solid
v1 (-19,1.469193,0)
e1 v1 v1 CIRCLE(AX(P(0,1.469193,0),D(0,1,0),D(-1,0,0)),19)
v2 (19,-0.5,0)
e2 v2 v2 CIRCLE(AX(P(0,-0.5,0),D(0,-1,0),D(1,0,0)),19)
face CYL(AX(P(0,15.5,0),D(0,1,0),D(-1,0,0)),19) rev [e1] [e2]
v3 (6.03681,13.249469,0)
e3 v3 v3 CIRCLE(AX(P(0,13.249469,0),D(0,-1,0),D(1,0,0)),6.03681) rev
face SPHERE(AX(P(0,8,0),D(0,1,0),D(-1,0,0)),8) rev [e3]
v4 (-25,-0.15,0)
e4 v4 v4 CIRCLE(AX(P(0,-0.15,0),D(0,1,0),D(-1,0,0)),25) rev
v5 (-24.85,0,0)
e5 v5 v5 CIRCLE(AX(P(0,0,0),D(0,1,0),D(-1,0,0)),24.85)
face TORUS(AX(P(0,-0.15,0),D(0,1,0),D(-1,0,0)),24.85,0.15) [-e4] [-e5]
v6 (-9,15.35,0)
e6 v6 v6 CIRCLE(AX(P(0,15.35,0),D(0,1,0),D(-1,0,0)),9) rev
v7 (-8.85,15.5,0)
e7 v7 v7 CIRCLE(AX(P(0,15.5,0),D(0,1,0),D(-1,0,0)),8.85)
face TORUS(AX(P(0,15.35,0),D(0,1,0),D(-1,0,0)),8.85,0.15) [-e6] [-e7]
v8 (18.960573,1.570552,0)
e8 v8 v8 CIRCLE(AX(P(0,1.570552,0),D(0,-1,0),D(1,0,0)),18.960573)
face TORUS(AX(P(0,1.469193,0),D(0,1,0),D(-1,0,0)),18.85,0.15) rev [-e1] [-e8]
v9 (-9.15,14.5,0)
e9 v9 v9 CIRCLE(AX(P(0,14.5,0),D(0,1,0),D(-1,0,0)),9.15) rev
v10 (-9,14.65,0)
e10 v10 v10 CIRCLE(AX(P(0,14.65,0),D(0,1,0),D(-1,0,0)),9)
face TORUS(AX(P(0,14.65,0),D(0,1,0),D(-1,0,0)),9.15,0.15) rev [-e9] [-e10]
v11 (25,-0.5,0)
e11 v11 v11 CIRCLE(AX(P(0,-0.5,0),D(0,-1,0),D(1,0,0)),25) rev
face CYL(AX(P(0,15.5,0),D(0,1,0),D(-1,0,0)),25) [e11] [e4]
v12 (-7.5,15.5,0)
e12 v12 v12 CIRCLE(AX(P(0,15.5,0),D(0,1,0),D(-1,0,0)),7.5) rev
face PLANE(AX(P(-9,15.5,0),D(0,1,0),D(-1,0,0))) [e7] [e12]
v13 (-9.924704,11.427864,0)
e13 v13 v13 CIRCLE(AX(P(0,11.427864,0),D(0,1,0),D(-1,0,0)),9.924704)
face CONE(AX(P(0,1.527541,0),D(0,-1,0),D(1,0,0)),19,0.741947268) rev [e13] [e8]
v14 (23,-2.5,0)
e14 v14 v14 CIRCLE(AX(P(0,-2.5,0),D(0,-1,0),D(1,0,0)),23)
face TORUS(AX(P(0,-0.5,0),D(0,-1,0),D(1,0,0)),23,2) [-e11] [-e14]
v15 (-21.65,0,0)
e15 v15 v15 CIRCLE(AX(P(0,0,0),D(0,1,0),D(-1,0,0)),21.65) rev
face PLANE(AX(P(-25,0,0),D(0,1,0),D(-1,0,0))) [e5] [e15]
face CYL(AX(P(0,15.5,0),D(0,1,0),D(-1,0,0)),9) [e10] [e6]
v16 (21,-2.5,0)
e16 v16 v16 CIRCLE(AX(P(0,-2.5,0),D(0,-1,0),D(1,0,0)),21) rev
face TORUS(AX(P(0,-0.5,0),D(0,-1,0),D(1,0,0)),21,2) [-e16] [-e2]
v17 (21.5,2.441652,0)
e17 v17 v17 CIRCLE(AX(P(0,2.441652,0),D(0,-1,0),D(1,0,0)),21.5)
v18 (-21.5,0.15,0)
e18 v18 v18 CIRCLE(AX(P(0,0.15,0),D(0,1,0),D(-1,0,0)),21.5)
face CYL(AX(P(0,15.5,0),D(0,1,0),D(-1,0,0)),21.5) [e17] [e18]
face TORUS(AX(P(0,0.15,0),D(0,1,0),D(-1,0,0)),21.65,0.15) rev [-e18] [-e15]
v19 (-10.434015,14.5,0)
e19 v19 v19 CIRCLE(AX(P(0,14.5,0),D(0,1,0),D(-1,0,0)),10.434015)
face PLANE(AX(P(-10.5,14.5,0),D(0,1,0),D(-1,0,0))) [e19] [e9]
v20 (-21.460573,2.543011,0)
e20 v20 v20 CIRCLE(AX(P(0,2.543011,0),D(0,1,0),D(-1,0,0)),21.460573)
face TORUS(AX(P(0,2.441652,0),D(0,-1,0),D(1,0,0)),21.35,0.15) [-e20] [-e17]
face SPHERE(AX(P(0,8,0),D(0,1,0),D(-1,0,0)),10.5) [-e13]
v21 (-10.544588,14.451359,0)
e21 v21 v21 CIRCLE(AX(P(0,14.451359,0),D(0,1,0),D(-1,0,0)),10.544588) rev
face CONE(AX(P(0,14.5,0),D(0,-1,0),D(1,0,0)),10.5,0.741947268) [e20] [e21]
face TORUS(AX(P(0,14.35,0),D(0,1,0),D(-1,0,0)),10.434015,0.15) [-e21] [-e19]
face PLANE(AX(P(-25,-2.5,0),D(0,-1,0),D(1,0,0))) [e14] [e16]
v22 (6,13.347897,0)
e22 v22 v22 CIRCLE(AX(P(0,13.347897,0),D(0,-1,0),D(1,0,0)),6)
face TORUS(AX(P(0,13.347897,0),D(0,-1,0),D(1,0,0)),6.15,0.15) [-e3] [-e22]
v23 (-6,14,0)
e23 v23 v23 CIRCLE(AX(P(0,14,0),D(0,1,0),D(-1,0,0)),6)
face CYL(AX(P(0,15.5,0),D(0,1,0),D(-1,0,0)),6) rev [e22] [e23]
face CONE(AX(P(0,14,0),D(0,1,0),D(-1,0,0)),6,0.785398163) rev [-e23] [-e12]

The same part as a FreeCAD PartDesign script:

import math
import FreeCAD as App
import Part
import Sketcher
Q = App.Units.Quantity


def edges_at(feature, points):
    """Names of the edges that pass closest to the given points."""
    edges = feature.Shape.Edges
    near = lambda p: min(range(len(edges)), key=lambda i: edges[i].distToShape(Part.Vertex(*p))[0])
    return sorted({f"Edge{near(p) + 1}" for p in points})

doc = App.newDocument("Part")
body = doc.addObject("PartDesign::Body", "Body")

# Sketch on XY plane
sketch1 = body.newObject("Sketcher::SketchObject", "Sketch")
sketch1.AttachmentSupport = (doc.getObject("XY_Plane"), [""])
sketch1.MapMode = "FlatFace"
sketch1.addGeometry([
    Part.LineSegment(App.Vector(-21.5, 0, 0), App.Vector(-25, 0, 0)),  # 0
    Part.LineSegment(App.Vector(-25, 0, 0), App.Vector(-25, -2.5, 0)),  # 1
    Part.LineSegment(App.Vector(-25, -2.5, 0), App.Vector(-19, -2.5, 0)),  # 2
    Part.LineSegment(App.Vector(-19, -2.5, 0), App.Vector(-19, 1.527541, 0)),  # 3
    Part.LineSegment(App.Vector(-19, 1.527541, 0), App.Vector(-9.924704, 11.427864, 0)),  # 4
    Part.ArcOfCircle(Part.Circle(App.Vector(0, 8, 0), App.Vector(0, 0, 1), 10.5), math.radians(160.945754), math.radians(270)),  # 5
    Part.LineSegment(App.Vector(0, -2.5, 0), App.Vector(0, 0, 0)),  # 6
    Part.ArcOfCircle(Part.Circle(App.Vector(0, 8, 0), App.Vector(0, 0, 1), 8), math.radians(138.590378), math.radians(270)),  # 7
    Part.LineSegment(App.Vector(-6, 13.291503, 0), App.Vector(-6, 15.5, 0)),  # 8
    Part.LineSegment(App.Vector(-6, 15.5, 0), App.Vector(-9, 15.5, 0)),  # 9
    Part.LineSegment(App.Vector(-9, 15.5, 0), App.Vector(-9, 14.5, 0)),  # 10
    Part.LineSegment(App.Vector(-9, 14.5, 0), App.Vector(-10.5, 14.5, 0)),  # 11
    Part.LineSegment(App.Vector(-10.5, 14.5, 0), App.Vector(-21.5, 2.5, 0)),  # 12
    Part.LineSegment(App.Vector(-21.5, 2.5, 0), App.Vector(-21.5, 0, 0)),  # 13
], False)
sketch1.addConstraint([
    Sketcher.Constraint("Coincident", 0, 2, 1, 1),
    Sketcher.Constraint("Coincident", 1, 2, 2, 1),
    Sketcher.Constraint("Coincident", 2, 2, 3, 1),
    Sketcher.Constraint("Coincident", 3, 2, 4, 1),
    Sketcher.Constraint("Coincident", 4, 2, 5, 1),
    Sketcher.Constraint("Coincident", 5, 2, 6, 1),
    Sketcher.Constraint("Coincident", 6, 2, 7, 2),
    Sketcher.Constraint("Coincident", 7, 1, 8, 1),
    Sketcher.Constraint("Coincident", 8, 2, 9, 1),
    Sketcher.Constraint("Coincident", 9, 2, 10, 1),
    Sketcher.Constraint("Coincident", 10, 2, 11, 1),
    Sketcher.Constraint("Coincident", 11, 2, 12, 1),
    Sketcher.Constraint("Coincident", 12, 2, 13, 1),
    Sketcher.Constraint("Coincident", 13, 2, 0, 1),
    Sketcher.Constraint("Horizontal", 0),
    Sketcher.Constraint("Vertical", 1),
    Sketcher.Constraint("Horizontal", 2),
    Sketcher.Constraint("Vertical", 3),
    Sketcher.Constraint("Vertical", 6),
    Sketcher.Constraint("Vertical", 8),
    Sketcher.Constraint("Horizontal", 9),
    Sketcher.Constraint("Vertical", 10),
    Sketcher.Constraint("Horizontal", 11),
    Sketcher.Constraint("Vertical", 13),
    Sketcher.Constraint("Coincident", 6, 2, -1, 1),
    Sketcher.Constraint("Coincident", 7, 3, 5, 3),
    Sketcher.Constraint("PointOnObject", 5, 3, -2),
    Sketcher.Constraint("PointOnObject", 0, 2, -1),
    Sketcher.Constraint("Parallel", 4, 12),
    Sketcher.Constraint("Horizontal", 2, 2, 5, 2),
    Sketcher.Constraint("Equal", 6, 13),
    Sketcher.Constraint("Radius", 7, Q("8 mm")),
    Sketcher.Constraint("Radius", 5, Q("10.5 mm")),
    Sketcher.Constraint("DistanceX", 2, 1, 2, 2, Q("6 mm")),
    Sketcher.Constraint("DistanceX", 9, 2, 9, 1, Q("3 mm")),
    Sketcher.Constraint("DistanceY", 10, 2, 10, 1, Q("1 mm")),
    Sketcher.Constraint("DistanceX", 0, 2, 0, 1, Q("3.5 mm")),
    Sketcher.Constraint("DistanceX", 11, 2, 11, 1, Q("1.5 mm")),
    Sketcher.Constraint("DistanceX", 0, 2, -1, 1, Q("25 mm")),
    Sketcher.Constraint("DistanceX", 7, 1, -1, 1, Q("6 mm")),
    Sketcher.Constraint("DistanceY", -1, 1, 8, 2, Q("15.5 mm")),
    Sketcher.Constraint("DistanceY", 3, 1, 3, 2, Q("4.027541 mm")),
])
revolution = body.newObject("PartDesign::Revolution", "Revolution")
revolution.Profile = sketch1
revolution.ReferenceAxis = (sketch1, ["V_Axis"])
revolution.Angle = 360
doc.recompute()

fillet = body.newObject("PartDesign::Fillet", "Fillet")
fillet.Base = (revolution, edges_at(revolution, [(19, -2.5, 0), (25, -2.5, 0)]))
fillet.Radius = 2
doc.recompute()

fillet2 = body.newObject("PartDesign::Fillet", "Fillet001")
fillet2.Base = (fillet, edges_at(fillet, [
    (25, 0, 0),
    (21.5, 0, 0),
    (21.5, 2.5, 0),
    (10.5, 14.5, 0),
    (9, 14.5, 0),
    (9, 15.5, 0),
    (6, 13.292, 0),
    (19, 1.528, 0),
]))
fillet2.Radius = 0.15
doc.recompute()

chamfer = body.newObject("PartDesign::Chamfer", "Chamfer")
chamfer.Base = (fillet2, edges_at(fillet2, [(6, 15.5, 0)]))
chamfer.Size = 1.5

doc.recompute()
